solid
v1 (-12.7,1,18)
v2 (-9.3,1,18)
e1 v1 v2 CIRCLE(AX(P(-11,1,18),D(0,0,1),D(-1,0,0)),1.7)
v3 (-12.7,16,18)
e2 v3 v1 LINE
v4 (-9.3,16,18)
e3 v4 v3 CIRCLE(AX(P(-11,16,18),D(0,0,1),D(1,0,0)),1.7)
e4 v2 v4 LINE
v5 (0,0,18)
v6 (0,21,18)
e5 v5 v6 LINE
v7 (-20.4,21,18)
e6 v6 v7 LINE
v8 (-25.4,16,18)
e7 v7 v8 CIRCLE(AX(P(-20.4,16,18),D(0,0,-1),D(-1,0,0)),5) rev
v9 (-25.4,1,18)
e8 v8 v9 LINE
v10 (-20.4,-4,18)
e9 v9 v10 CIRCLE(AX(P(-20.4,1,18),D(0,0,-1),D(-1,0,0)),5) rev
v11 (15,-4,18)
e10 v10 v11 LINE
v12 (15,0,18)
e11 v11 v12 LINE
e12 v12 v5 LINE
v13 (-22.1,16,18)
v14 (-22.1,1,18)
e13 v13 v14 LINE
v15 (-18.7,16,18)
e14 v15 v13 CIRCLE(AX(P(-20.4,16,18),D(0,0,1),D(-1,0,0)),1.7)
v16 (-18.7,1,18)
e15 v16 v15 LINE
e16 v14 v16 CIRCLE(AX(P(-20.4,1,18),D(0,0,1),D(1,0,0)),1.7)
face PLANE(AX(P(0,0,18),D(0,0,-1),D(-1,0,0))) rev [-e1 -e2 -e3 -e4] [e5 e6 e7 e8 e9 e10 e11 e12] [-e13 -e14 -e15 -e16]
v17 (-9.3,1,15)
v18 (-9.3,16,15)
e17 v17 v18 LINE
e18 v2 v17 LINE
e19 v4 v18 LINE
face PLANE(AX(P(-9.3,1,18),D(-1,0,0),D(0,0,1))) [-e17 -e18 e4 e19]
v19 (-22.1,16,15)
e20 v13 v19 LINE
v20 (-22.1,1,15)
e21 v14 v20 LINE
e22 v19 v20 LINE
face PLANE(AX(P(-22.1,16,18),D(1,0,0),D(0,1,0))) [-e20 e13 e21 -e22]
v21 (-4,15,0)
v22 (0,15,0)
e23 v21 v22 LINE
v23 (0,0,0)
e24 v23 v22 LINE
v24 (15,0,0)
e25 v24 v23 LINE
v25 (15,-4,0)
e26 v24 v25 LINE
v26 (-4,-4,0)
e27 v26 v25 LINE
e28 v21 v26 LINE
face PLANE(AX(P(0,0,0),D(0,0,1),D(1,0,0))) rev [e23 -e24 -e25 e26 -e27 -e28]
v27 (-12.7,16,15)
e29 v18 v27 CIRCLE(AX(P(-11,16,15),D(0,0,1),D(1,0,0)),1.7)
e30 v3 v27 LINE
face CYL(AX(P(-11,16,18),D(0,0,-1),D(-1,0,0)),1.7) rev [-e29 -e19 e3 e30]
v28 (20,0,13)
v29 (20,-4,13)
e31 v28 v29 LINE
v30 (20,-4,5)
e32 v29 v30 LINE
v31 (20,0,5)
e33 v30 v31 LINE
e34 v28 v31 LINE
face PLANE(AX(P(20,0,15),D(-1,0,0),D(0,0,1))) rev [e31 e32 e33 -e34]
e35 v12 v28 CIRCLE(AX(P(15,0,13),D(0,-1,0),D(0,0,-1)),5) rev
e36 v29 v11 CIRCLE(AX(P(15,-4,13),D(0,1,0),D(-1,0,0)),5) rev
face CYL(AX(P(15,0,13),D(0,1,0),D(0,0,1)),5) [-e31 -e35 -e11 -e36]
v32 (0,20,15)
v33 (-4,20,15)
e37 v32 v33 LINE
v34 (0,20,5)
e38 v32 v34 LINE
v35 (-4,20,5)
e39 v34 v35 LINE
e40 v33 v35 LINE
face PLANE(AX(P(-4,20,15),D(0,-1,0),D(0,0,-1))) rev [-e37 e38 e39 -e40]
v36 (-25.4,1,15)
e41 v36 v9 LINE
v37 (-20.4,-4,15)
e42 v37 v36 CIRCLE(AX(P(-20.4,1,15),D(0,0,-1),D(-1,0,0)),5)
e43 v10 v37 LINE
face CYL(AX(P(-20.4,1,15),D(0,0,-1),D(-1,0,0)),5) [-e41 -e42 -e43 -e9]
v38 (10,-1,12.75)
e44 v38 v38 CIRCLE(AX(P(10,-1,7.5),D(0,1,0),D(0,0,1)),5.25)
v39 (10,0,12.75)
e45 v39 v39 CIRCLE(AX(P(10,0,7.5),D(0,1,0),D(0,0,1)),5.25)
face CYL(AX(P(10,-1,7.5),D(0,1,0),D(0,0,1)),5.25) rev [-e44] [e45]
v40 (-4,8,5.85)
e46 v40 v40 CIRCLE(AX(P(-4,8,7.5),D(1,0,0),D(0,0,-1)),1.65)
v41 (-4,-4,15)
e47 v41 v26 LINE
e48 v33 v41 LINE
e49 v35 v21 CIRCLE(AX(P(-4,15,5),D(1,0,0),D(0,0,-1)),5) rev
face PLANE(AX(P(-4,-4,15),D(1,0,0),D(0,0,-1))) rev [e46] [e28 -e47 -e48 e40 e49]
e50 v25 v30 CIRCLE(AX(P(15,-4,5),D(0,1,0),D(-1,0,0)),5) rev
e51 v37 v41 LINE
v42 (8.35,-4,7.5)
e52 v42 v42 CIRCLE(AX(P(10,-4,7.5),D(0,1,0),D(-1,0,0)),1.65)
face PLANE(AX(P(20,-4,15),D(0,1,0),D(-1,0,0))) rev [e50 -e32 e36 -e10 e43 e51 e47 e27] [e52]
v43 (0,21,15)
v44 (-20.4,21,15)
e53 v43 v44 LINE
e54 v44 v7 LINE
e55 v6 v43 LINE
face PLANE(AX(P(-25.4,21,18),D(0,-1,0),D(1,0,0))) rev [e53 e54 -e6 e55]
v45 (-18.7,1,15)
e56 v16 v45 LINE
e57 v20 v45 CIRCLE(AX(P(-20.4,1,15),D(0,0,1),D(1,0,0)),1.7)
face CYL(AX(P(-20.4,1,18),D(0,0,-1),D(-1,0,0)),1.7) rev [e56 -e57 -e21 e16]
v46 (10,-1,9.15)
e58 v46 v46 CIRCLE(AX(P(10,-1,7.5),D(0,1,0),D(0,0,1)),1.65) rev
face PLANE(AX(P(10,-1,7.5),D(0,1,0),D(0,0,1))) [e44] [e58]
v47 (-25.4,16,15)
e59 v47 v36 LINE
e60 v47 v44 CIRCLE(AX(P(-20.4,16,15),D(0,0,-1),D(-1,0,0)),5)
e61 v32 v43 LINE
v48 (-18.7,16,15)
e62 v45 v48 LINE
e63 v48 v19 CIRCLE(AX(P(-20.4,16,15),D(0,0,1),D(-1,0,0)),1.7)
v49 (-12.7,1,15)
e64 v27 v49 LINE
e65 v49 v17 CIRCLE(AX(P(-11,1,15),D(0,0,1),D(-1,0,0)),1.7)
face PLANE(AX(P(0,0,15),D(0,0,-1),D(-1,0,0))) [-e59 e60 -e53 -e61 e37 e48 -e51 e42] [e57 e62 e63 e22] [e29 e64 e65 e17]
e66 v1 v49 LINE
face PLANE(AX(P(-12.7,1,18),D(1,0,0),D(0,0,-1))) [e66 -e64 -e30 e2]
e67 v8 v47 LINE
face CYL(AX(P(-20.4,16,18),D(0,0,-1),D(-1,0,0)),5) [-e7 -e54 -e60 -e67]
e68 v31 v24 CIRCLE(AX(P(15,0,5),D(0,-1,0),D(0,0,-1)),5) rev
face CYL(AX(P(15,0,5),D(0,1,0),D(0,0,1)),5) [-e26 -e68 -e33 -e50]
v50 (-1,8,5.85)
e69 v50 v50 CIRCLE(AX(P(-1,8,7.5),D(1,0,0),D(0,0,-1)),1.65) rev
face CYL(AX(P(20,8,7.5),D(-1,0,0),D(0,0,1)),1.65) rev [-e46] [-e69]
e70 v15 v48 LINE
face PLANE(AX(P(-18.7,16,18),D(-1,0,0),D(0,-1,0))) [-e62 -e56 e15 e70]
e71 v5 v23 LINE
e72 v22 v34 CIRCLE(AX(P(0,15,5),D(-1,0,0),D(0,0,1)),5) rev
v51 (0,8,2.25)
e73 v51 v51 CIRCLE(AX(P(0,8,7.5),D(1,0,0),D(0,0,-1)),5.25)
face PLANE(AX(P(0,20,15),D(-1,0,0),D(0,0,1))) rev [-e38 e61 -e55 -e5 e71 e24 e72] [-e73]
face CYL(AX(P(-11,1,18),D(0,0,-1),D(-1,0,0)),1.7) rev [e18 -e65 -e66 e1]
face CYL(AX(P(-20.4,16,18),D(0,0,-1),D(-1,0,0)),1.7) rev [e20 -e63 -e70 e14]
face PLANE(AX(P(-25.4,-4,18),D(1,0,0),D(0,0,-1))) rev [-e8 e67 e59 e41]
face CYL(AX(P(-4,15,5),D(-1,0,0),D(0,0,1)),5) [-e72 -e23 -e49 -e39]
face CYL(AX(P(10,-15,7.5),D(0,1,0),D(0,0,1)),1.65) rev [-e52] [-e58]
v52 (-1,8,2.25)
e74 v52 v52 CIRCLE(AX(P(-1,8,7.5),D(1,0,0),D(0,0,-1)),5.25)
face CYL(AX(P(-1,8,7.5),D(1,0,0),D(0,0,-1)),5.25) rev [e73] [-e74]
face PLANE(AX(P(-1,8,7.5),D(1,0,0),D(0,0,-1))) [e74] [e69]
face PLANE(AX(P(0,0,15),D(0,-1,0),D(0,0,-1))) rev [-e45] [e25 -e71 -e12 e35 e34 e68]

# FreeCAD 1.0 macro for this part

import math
import FreeCAD as App
import Part
import Sketcher


def edges_at(feature, points):
    """Names of the edges that pass closest to the given points."""
    edges = feature.Shape.Edges
    near = lambda p: min(range(len(edges)), key=lambda i: edges[i].distToShape(Part.Vertex(*p))[0])
    return sorted({f"Edge{near(p) + 1}" for p in points})

doc = App.newDocument("Part")
body = doc.addObject("PartDesign::Body", "Body")

# Sketch on XY plane
sketch1 = body.newObject("Sketcher::SketchObject", "Sketch")
sketch1.AttachmentSupport = (doc.getObject("XY_Plane"), [""])
sketch1.MapMode = "FlatFace"
sketch1.addGeometry(Part.LineSegment(App.Vector(20, 0, 0), App.Vector(0, 0, 0)), False)
sketch1.addGeometry(Part.LineSegment(App.Vector(0, 0, 0), App.Vector(0, 20, 0)), False)
sketch1.addGeometry(Part.LineSegment(App.Vector(0, 20, 0), App.Vector(-4, 20, 0)), False)
sketch1.addGeometry(Part.LineSegment(App.Vector(-4, 20, 0), App.Vector(-4, -4, 0)), False)
sketch1.addGeometry(Part.LineSegment(App.Vector(-4, -4, 0), App.Vector(20, -4, 0)), False)
sketch1.addGeometry(Part.LineSegment(App.Vector(20, -4, 0), App.Vector(20, 0, 0)), False)
sketch1.addConstraint(Sketcher.Constraint("Coincident", 0, 2, 1, 1))
sketch1.addConstraint(Sketcher.Constraint("Coincident", 1, 2, 2, 1))
sketch1.addConstraint(Sketcher.Constraint("Coincident", 2, 2, 3, 1))
sketch1.addConstraint(Sketcher.Constraint("Coincident", 3, 2, 4, 1))
sketch1.addConstraint(Sketcher.Constraint("Coincident", 4, 2, 5, 1))
sketch1.addConstraint(Sketcher.Constraint("Coincident", 5, 2, 0, 1))
sketch1.addConstraint(Sketcher.Constraint("Horizontal", 0))
sketch1.addConstraint(Sketcher.Constraint("Vertical", 1))
sketch1.addConstraint(Sketcher.Constraint("Horizontal", 2))
sketch1.addConstraint(Sketcher.Constraint("Vertical", 3))
sketch1.addConstraint(Sketcher.Constraint("Horizontal", 4))
sketch1.addConstraint(Sketcher.Constraint("Vertical", 5))
sketch1.addConstraint(Sketcher.Constraint("Coincident", 0, 2, -1, 1))
sketch1.addConstraint(Sketcher.Constraint("Equal", 0, 1))
sketch1.addConstraint(Sketcher.Constraint("Equal", 4, 3))
sketch1.addConstraint(Sketcher.Constraint("DistanceX", 0, 2, 0, 1, 20.0))
sketch1.addConstraint(Sketcher.Constraint("DistanceX", 2, 2, 2, 1, 4.0))
pad1 = body.newObject("PartDesign::Pad", "Pad")
pad1.Profile = sketch1
pad1.Length = 15

# Sketch on YZ plane
sketch2 = body.newObject("Sketcher::SketchObject", "Sketch001")
sketch2.AttachmentSupport = (doc.getObject("YZ_Plane"), [""])
sketch2.MapMode = "FlatFace"
sketch2.AttachmentOffset = App.Placement(App.Vector(0, 0, -4), App.Rotation())
sketch2.addGeometry(Part.Circle(App.Vector(8, 7.5, 0), App.Vector(0, 0, 1), 1.6), False)
sketch2.addConstraint(Sketcher.Constraint("Diameter", 0, 3.3))
sketch2.addConstraint(Sketcher.Constraint("DistanceX", -1, 1, 0, 3, 8.0))
sketch2.addConstraint(Sketcher.Constraint("DistanceY", -1, 1, 0, 3, 7.5))
pocket1 = body.newObject("PartDesign::Pocket", "Pocket")
pocket1.Profile = sketch2
pocket1.Type = "ThroughAll"
pocket1.Midplane = True

# Sketch on XZ plane
sketch3 = body.newObject("Sketcher::SketchObject", "Sketch002")
sketch3.AttachmentSupport = (doc.getObject("XZ_Plane"), [""])
sketch3.MapMode = "FlatFace"
sketch3.addGeometry(Part.Circle(App.Vector(10, 7.5, 0), App.Vector(0, 0, 1), 1.6), False)
sketch3.addConstraint(Sketcher.Constraint("Diameter", 0, 3.3))
sketch3.addConstraint(Sketcher.Constraint("DistanceX", -1, 1, 0, 3, 10.0))
sketch3.addConstraint(Sketcher.Constraint("DistanceY", -1, 1, 0, 3, 7.5))
pocket2 = body.newObject("PartDesign::Pocket", "Pocket001")
pocket2.Profile = sketch3
pocket2.Length = 15
pocket2.Reversed = True

# Sketch on XZ plane
sketch4 = body.newObject("Sketcher::SketchObject", "Sketch003")
sketch4.AttachmentSupport = (doc.getObject("XZ_Plane"), [""])
sketch4.MapMode = "FlatFace"
sketch4.addGeometry(Part.Circle(App.Vector(10, 8, 0), App.Vector(0, 0, 1), 5), False)
sketch4.addConstraint(Sketcher.Constraint("Diameter", 0, 10.5))
sketch4.addConstraint(Sketcher.Constraint("DistanceX", -1, 1, 0, 3, 10.0))
sketch4.addConstraint(Sketcher.Constraint("DistanceY", -1, 1, 0, 3, 7.5))
pocket3 = body.newObject("PartDesign::Pocket", "Pocket002")
pocket3.Profile = sketch4
pocket3.Length = 1
pocket3.Reversed = True

# Sketch on YZ plane
sketch5 = body.newObject("Sketcher::SketchObject", "Sketch004")
sketch5.AttachmentSupport = (doc.getObject("YZ_Plane"), [""])
sketch5.MapMode = "FlatFace"
sketch5.addGeometry(Part.Circle(App.Vector(8, 8, 0), App.Vector(0, 0, 1), 5), False)
sketch5.addConstraint(Sketcher.Constraint("Diameter", 0, 10.5))
sketch5.addConstraint(Sketcher.Constraint("DistanceX", -1, 1, 0, 3, 8.0))
sketch5.addConstraint(Sketcher.Constraint("DistanceY", -1, 1, 0, 3, 7.5))
pocket4 = body.newObject("PartDesign::Pocket", "Pocket003")
pocket4.Profile = sketch5
pocket4.Length = 1

# Sketch on XY plane
sketch6 = body.newObject("Sketcher::SketchObject", "Sketch005")
sketch6.AttachmentSupport = (doc.getObject("XY_Plane"), [""])
sketch6.MapMode = "FlatFace"
sketch6.AttachmentOffset = App.Placement(App.Vector(0, 0, 15), App.Rotation())
sketch6.addGeometry(Part.LineSegment(App.Vector(-25.4, -4, 0), App.Vector(20, -4, 0)), False)
sketch6.addGeometry(Part.LineSegment(App.Vector(20, -4, 0), App.Vector(20, 0, 0)), False)
sketch6.addGeometry(Part.LineSegment(App.Vector(20, 0, 0), App.Vector(0, 0, 0)), False)
sketch6.addGeometry(Part.LineSegment(App.Vector(0, 0, 0), App.Vector(0, 21, 0)), False)
sketch6.addGeometry(Part.LineSegment(App.Vector(0, 21, 0), App.Vector(-25.4, 21, 0)), False)
sketch6.addGeometry(Part.LineSegment(App.Vector(-25.4, 21, 0), App.Vector(-25.4, -4, 0)), False)
sketch6.addGeometry(Part.ArcOfCircle(Part.Circle(App.Vector(-11, 1, 0), App.Vector(0, 0, 1), 1.7), math.radians(180), math.radians(360)), False)
sketch6.addGeometry(Part.LineSegment(App.Vector(-12.7, 1, 0), App.Vector(-12.7, 16, 0)), False)
sketch6.addGeometry(Part.ArcOfCircle(Part.Circle(App.Vector(-11, 16, 0), App.Vector(0, 0, 1), 1.7), math.radians(0), math.radians(180)), False)
sketch6.addGeometry(Part.LineSegment(App.Vector(-9.3, 16, 0), App.Vector(-9.3, 1, 0)), False)
sketch6.addGeometry(Part.ArcOfCircle(Part.Circle(App.Vector(-20.4, 16, 0), App.Vector(0, 0, 1), 1.7), math.radians(0), math.radians(180)), False)
sketch6.addGeometry(Part.LineSegment(App.Vector(-18.7, 16, 0), App.Vector(-18.7, 1, 0)), False)
sketch6.addGeometry(Part.ArcOfCircle(Part.Circle(App.Vector(-20.4, 1, 0), App.Vector(0, 0, 1), 1.7), math.radians(180), math.radians(360)), False)
sketch6.addGeometry(Part.LineSegment(App.Vector(-22.1, 1, 0), App.Vector(-22.1, 16, 0)), False)
sketch6.addConstraint(Sketcher.Constraint("Coincident", 0, 2, 1, 1))
sketch6.addConstraint(Sketcher.Constraint("Coincident", 1, 2, 2, 1))
sketch6.addConstraint(Sketcher.Constraint("Coincident", 2, 2, 3, 1))
sketch6.addConstraint(Sketcher.Constraint("Coincident", 3, 2, 4, 1))
sketch6.addConstraint(Sketcher.Constraint("Coincident", 4, 2, 5, 1))
sketch6.addConstraint(Sketcher.Constraint("Coincident", 5, 2, 0, 1))
sketch6.addConstraint(Sketcher.Constraint("Tangent", 6, 1, 7, 1))
sketch6.addConstraint(Sketcher.Constraint("Tangent", 7, 2, 8, 2))
sketch6.addConstraint(Sketcher.Constraint("Tangent", 8, 1, 9, 1))
sketch6.addConstraint(Sketcher.Constraint("Tangent", 9, 2, 6, 2))
sketch6.addConstraint(Sketcher.Constraint("Tangent", 10, 1, 11, 1))
sketch6.addConstraint(Sketcher.Constraint("Tangent", 11, 2, 12, 2))
sketch6.addConstraint(Sketcher.Constraint("Tangent", 12, 1, 13, 1))
sketch6.addConstraint(Sketcher.Constraint("Tangent", 13, 2, 10, 2))
sketch6.addConstraint(Sketcher.Constraint("Horizontal", 0))
sketch6.addConstraint(Sketcher.Constraint("Vertical", 1))
sketch6.addConstraint(Sketcher.Constraint("Horizontal", 2))
sketch6.addConstraint(Sketcher.Constraint("Vertical", 3))
sketch6.addConstraint(Sketcher.Constraint("Horizontal", 4))
sketch6.addConstraint(Sketcher.Constraint("Vertical", 5))
sketch6.addConstraint(Sketcher.Constraint("Vertical", 7))
sketch6.addConstraint(Sketcher.Constraint("Vertical", 9))
sketch6.addConstraint(Sketcher.Constraint("Vertical", 11))
sketch6.addConstraint(Sketcher.Constraint("Vertical", 13))
sketch6.addConstraint(Sketcher.Constraint("Coincident", 2, 2, -1, 1))
sketch6.addConstraint(Sketcher.Constraint("Equal", 8, 10))
sketch6.addConstraint(Sketcher.Constraint("Horizontal", 8, 3, 10, 3))
sketch6.addConstraint(Sketcher.Constraint("Horizontal", 6, 3, 12, 3))
sketch6.addConstraint(Sketcher.Constraint("Radius", 6, 1.7))
sketch6.addConstraint(Sketcher.Constraint("DistanceX", 2, 2, 2, 1, 20.0))
sketch6.addConstraint(Sketcher.Constraint("DistanceY", 1, 1, 1, 2, 4.0))
sketch6.addConstraint(Sketcher.Constraint("DistanceY", 3, 1, 3, 2, 21.0))
sketch6.addConstraint(Sketcher.Constraint("DistanceY", 7, 1, 7, 2, 15.0))
sketch6.addConstraint(Sketcher.Constraint("DistanceX", 0, 1, 0, 2, 45.4))
sketch6.addConstraint(Sketcher.Constraint("DistanceX", 6, 3, -1, 1, 11.0))
sketch6.addConstraint(Sketcher.Constraint("DistanceY", -1, 1, 6, 3, 1.0))
sketch6.addConstraint(Sketcher.Constraint("DistanceX", 4, 2, 10, 3, 5.0))
pad2 = body.newObject("PartDesign::Pad", "Pad001")
pad2.Profile = sketch6
pad2.Length = 3
doc.recompute()

fillet = body.newObject("PartDesign::Fillet", "Fillet")
fillet.Base = (pad2, edges_at(pad2, [
    (20, -2, 18),
    (-25.4, 21, 16.5),
    (-25.4, -4, 16.5),
    (20, -2, 0),
    (-2, 20, 0),
]))
fillet.Radius = 5

doc.recompute()
